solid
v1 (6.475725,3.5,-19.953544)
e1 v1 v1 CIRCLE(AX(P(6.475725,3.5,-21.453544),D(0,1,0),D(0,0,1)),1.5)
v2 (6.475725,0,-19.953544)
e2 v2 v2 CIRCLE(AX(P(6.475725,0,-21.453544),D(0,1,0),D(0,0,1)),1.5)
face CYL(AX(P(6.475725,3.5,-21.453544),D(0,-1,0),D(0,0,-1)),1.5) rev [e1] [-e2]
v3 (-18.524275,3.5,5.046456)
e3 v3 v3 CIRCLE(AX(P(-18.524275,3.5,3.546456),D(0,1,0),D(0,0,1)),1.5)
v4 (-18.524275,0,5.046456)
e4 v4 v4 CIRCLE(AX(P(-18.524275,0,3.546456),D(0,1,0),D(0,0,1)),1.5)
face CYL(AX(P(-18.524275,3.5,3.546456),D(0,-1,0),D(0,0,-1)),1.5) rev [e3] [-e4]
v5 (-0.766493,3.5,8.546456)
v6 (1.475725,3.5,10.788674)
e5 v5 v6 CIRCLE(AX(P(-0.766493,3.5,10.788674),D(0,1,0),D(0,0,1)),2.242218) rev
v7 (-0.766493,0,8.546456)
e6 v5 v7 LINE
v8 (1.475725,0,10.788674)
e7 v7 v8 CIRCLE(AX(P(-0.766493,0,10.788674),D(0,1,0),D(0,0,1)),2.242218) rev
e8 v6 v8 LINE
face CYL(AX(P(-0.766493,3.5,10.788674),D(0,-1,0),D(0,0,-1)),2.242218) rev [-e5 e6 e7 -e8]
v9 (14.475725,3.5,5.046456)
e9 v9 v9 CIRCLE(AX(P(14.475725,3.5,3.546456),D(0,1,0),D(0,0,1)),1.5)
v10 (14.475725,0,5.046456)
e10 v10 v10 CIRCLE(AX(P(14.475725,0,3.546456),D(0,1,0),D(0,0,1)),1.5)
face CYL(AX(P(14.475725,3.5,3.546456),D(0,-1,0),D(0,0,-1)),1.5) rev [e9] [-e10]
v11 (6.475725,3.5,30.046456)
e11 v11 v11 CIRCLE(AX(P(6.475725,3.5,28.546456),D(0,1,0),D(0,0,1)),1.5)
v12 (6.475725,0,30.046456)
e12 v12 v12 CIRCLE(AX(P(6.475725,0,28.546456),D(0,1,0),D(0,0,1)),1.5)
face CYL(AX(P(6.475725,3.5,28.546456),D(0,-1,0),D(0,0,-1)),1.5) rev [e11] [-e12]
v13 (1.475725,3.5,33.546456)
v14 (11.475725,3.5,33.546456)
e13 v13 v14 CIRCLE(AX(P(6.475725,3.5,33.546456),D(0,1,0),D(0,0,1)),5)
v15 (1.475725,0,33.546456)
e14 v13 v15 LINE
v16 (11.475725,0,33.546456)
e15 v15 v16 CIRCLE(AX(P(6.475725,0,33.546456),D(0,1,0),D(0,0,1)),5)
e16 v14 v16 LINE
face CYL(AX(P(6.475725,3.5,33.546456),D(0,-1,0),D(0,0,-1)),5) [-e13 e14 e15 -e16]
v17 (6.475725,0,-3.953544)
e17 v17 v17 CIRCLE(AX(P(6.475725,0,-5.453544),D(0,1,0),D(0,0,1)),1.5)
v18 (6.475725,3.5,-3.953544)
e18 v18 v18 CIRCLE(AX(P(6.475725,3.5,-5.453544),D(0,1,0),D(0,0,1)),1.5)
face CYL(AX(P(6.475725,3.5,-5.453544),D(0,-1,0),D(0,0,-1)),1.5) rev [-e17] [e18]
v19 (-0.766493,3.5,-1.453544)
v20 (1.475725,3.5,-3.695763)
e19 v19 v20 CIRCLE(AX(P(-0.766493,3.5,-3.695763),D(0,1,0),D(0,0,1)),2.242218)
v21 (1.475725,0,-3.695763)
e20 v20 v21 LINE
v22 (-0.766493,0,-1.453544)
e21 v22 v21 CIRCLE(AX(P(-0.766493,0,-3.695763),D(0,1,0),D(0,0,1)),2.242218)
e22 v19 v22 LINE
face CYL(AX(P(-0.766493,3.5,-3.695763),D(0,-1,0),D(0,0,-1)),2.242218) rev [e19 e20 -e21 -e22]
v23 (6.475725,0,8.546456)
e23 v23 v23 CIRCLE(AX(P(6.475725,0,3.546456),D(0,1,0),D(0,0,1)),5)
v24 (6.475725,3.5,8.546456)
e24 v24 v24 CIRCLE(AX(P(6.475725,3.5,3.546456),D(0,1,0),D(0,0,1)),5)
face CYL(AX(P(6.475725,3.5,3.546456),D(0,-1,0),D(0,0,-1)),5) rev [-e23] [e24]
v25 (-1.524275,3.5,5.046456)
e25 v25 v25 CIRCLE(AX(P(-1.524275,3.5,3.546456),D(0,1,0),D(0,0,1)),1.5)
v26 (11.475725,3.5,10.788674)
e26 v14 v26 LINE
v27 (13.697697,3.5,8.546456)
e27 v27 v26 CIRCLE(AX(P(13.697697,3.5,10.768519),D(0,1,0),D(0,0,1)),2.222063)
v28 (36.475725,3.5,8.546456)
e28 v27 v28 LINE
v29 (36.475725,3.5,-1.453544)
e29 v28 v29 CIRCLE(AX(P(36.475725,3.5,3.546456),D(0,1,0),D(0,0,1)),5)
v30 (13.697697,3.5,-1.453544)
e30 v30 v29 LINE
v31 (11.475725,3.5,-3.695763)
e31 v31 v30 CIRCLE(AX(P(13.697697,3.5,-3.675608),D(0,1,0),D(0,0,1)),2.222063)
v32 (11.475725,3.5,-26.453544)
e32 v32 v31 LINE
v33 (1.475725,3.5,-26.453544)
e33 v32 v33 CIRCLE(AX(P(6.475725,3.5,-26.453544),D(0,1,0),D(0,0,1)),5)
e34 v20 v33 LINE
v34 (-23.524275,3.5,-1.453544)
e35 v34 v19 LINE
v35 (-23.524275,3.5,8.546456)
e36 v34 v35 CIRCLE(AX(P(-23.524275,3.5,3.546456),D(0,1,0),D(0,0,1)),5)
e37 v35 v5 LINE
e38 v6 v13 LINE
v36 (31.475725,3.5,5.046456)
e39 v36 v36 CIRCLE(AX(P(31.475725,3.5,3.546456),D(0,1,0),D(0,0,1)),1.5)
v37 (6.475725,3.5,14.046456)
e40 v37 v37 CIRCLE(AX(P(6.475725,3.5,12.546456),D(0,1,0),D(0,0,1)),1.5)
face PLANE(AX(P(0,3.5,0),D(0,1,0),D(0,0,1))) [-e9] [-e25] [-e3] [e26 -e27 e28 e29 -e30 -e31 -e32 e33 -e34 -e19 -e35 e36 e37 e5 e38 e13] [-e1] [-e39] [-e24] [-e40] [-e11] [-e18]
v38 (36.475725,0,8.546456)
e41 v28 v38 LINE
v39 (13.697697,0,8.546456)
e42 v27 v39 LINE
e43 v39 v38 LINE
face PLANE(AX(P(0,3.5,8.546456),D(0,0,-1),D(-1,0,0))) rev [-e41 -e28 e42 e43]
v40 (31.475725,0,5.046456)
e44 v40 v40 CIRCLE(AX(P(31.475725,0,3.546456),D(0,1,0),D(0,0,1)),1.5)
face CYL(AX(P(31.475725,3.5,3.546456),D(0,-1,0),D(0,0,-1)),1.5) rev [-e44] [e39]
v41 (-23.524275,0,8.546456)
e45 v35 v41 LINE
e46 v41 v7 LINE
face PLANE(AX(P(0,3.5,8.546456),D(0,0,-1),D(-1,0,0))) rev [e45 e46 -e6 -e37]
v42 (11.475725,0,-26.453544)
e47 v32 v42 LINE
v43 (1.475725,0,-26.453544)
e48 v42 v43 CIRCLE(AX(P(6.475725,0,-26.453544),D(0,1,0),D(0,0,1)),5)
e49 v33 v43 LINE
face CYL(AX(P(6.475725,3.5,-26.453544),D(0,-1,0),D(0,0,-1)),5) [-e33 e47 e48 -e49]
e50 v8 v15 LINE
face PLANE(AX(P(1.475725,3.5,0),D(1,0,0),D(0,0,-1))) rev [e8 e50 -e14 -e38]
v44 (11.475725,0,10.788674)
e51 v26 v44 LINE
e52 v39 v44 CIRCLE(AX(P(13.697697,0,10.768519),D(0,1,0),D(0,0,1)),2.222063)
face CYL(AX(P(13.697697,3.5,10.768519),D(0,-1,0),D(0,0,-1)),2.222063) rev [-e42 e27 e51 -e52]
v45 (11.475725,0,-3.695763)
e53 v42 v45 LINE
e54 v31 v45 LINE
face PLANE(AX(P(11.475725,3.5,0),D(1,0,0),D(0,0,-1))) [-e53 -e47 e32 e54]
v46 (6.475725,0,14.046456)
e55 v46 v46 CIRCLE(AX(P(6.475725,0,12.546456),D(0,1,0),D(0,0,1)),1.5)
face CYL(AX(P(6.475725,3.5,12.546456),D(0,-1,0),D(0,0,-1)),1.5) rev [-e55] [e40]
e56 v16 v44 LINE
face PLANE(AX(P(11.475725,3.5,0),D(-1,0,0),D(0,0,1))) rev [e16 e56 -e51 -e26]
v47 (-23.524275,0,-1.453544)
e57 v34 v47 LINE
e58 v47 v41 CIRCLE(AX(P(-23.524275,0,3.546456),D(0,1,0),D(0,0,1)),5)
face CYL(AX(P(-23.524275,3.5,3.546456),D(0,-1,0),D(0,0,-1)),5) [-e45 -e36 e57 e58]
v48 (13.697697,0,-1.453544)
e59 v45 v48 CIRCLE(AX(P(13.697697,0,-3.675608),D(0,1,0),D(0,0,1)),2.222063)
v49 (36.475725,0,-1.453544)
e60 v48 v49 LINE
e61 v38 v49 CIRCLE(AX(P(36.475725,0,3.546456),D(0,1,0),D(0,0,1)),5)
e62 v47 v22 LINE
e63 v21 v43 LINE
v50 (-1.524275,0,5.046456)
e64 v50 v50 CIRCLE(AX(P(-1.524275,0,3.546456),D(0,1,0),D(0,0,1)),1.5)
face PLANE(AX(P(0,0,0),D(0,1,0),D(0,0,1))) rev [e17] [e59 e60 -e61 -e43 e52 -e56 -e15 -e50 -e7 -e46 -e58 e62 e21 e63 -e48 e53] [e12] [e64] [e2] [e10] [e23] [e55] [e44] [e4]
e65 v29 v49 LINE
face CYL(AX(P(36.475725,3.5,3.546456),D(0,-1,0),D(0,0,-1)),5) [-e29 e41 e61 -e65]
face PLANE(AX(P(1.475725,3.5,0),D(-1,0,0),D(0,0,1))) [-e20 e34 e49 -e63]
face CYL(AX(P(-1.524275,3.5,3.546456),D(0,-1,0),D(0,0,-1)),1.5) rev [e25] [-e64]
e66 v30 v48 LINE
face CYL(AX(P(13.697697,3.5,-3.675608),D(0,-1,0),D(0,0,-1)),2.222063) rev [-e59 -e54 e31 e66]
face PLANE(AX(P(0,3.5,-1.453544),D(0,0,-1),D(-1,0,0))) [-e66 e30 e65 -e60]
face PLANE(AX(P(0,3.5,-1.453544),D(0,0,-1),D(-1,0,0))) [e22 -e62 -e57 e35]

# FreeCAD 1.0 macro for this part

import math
import FreeCAD as App
import Part
import Sketcher
Q = App.Units.Quantity

doc = App.newDocument("Part")
body = doc.addObject("PartDesign::Body", "Body")

# Sketch on XZ plane
sketch1 = body.newObject("Sketcher::SketchObject", "Sketch")
sketch1.AttachmentSupport = (doc.getObject("XZ_Plane"), [""])
sketch1.MapMode = "FlatFace"
sketch1.addGeometry([
    Part.ArcOfCircle(Part.Circle(App.Vector(-0.766493, -3.695763, 0), App.Vector(0, 0, 1), 2.242218), math.radians(0), math.radians(90)),  # 0
    Part.LineSegment(App.Vector(-0.766493, -1.453544, 0), App.Vector(-23.524275, -1.453544, 0)),  # 1
    Part.ArcOfCircle(Part.Circle(App.Vector(-23.524275, 3.546456, 0), App.Vector(0, 0, 1), 5), math.radians(90), math.radians(270)),  # 2
    Part.LineSegment(App.Vector(-23.524275, 8.546456, 0), App.Vector(-0.766493, 8.546456, 0)),  # 3
    Part.ArcOfCircle(Part.Circle(App.Vector(-0.766493, 10.788674, 0), App.Vector(0, 0, 1), 2.242218), math.radians(-90), math.radians(0)),  # 4
    Part.LineSegment(App.Vector(1.475725, 10.788674, 0), App.Vector(1.475725, 33.546456, 0)),  # 5
    Part.ArcOfCircle(Part.Circle(App.Vector(6.475725, 33.546456, 0), App.Vector(0, 0, 1), 5), math.radians(0), math.radians(180)),  # 6
    Part.LineSegment(App.Vector(11.475725, 33.546456, 0), App.Vector(11.475725, 10.748364, 0)),  # 7
    Part.ArcOfCircle(Part.Circle(App.Vector(13.697697, 10.768519, 0), App.Vector(0, 0, 1), 2.222063), math.radians(-179.480295), math.radians(-90)),  # 8
    Part.LineSegment(App.Vector(13.697697, 8.546456, 0), App.Vector(36.475725, 8.546456, 0)),  # 9
    Part.ArcOfCircle(Part.Circle(App.Vector(36.475725, 3.546456, 0), App.Vector(0, 0, 1), 5), math.radians(-90), math.radians(90)),  # 10
    Part.LineSegment(App.Vector(36.475725, -1.453544, 0), App.Vector(13.697697, -1.453544, 0)),  # 11
    Part.ArcOfCircle(Part.Circle(App.Vector(13.697697, -3.675608, 0), App.Vector(0, 0, 1), 2.222063), math.radians(90), math.radians(179.480295)),  # 12
    Part.LineSegment(App.Vector(11.475725, -3.655453, 0), App.Vector(11.475725, -26.453544, 0)),  # 13
    Part.ArcOfCircle(Part.Circle(App.Vector(6.475725, -26.453544, 0), App.Vector(0, 0, 1), 5), math.radians(180), math.radians(360)),  # 14
    Part.LineSegment(App.Vector(1.475725, -26.453544, 0), App.Vector(1.475725, -3.695763, 0)),  # 15
    Part.Circle(App.Vector(6.475725, 28.546456, 0), App.Vector(0, 0, 1), 1.5),  # 16
    Part.Circle(App.Vector(6.475725, 12.546456, 0), App.Vector(0, 0, 1), 1.5),  # 17
    Part.Circle(App.Vector(-18.524275, 3.546456, 0), App.Vector(0, 0, 1), 1.5),  # 18
    Part.Circle(App.Vector(-1.524275, 3.546456, 0), App.Vector(0, 0, 1), 1.5),  # 19
    Part.Circle(App.Vector(6.475725, 3.546456, 0), App.Vector(0, 0, 1), 5),  # 20
    Part.Circle(App.Vector(14.475725, 3.546456, 0), App.Vector(0, 0, 1), 1.5),  # 21
    Part.Circle(App.Vector(6.475725, -5.453544, 0), App.Vector(0, 0, 1), 1.5),  # 22
    Part.Circle(App.Vector(31.475725, 3.546456, 0), App.Vector(0, 0, 1), 1.5),  # 23
    Part.Circle(App.Vector(6.475725, -21.453544, 0), App.Vector(0, 0, 1), 1.5),  # 24
], False)
sketch1.addConstraint([
    Sketcher.Constraint("Coincident", 0, 2, 1, 1),
    Sketcher.Constraint("Coincident", 1, 2, 2, 2),
    Sketcher.Constraint("Coincident", 2, 1, 3, 1),
    Sketcher.Constraint("Coincident", 3, 2, 4, 1),
    Sketcher.Constraint("Coincident", 4, 2, 5, 1),
    Sketcher.Constraint("Coincident", 5, 2, 6, 2),
    Sketcher.Constraint("Coincident", 6, 1, 7, 1),
    Sketcher.Constraint("Coincident", 7, 2, 8, 1),
    Sketcher.Constraint("Coincident", 8, 2, 9, 1),
    Sketcher.Constraint("Coincident", 9, 2, 10, 2),
    Sketcher.Constraint("Coincident", 10, 1, 11, 1),
    Sketcher.Constraint("Coincident", 11, 2, 12, 1),
    Sketcher.Constraint("Coincident", 12, 2, 13, 1),
    Sketcher.Constraint("Coincident", 13, 2, 14, 2),
    Sketcher.Constraint("Coincident", 14, 1, 15, 1),
    Sketcher.Constraint("Coincident", 15, 2, 0, 1),
    Sketcher.Constraint("Horizontal", 1),
    Sketcher.Constraint("Horizontal", 3),
    Sketcher.Constraint("Vertical", 5),
    Sketcher.Constraint("Vertical", 7),
    Sketcher.Constraint("Horizontal", 9),
    Sketcher.Constraint("Horizontal", 11),
    Sketcher.Constraint("Vertical", 13),
    Sketcher.Constraint("Vertical", 15),
    Sketcher.Constraint("Diameter", 16, Q("3 mm")),
    Sketcher.Constraint("Diameter", 17, Q("3 mm")),
    Sketcher.Constraint("Diameter", 18, Q("3 mm")),
    Sketcher.Constraint("Diameter", 19, Q("3 mm")),
    Sketcher.Constraint("Diameter", 20, Q("10 mm")),
    Sketcher.Constraint("Diameter", 21, Q("3 mm")),
    Sketcher.Constraint("Diameter", 22, Q("3 mm")),
    Sketcher.Constraint("Diameter", 23, Q("3 mm")),
    Sketcher.Constraint("Diameter", 24, Q("3 mm")),
    Sketcher.Constraint("Radius", 2, Q("5 mm")),
    Sketcher.Constraint("Radius", 6, Q("5 mm")),
    Sketcher.Constraint("Radius", 10, Q("5 mm")),
    Sketcher.Constraint("Radius", 14, Q("5 mm")),
    Sketcher.Constraint("DistanceX", 2, 3, 6, 3, Q("30 mm")),
    Sketcher.Constraint("DistanceY", 2, 3, 6, 3, Q("30 mm")),
    Sketcher.Constraint("DistanceX", 6, 3, 10, 3, Q("30 mm")),
    Sketcher.Constraint("DistanceY", 10, 3, 6, 3, Q("30 mm")),
    Sketcher.Constraint("DistanceX", 2, 3, 14, 3, Q("30 mm")),
    Sketcher.Constraint("DistanceY", 14, 3, 2, 3, Q("30 mm")),
    Sketcher.Constraint("DistanceY", 16, 3, 6, 3, Q("5 mm")),
    Sketcher.Constraint("DistanceY", 17, 3, 16, 3, Q("16 mm")),
    Sketcher.Constraint("DistanceX", 2, 3, 18, 3, Q("5 mm")),
    Sketcher.Constraint("DistanceX", 18, 3, 17, 3, Q("25 mm")),
    Sketcher.Constraint("DistanceY", 18, 3, 17, 3, Q("9 mm")),
    Sketcher.Constraint("DistanceX", 19, 3, 17, 3, Q("8 mm")),
    Sketcher.Constraint("DistanceY", 19, 3, 17, 3, Q("9 mm")),
    Sketcher.Constraint("DistanceX", 19, 3, 20, 3, Q("8 mm")),
    Sketcher.Constraint("DistanceY", 20, 3, 17, 3, Q("9 mm")),
    Sketcher.Constraint("DistanceX", 20, 3, 21, 3, Q("8 mm")),
    Sketcher.Constraint("DistanceY", 21, 3, 17, 3, Q("9 mm")),
    Sketcher.Constraint("DistanceY", 22, 3, 20, 3, Q("9 mm")),
    Sketcher.Constraint("DistanceX", 19, 3, 22, 3, Q("8 mm")),
    Sketcher.Constraint("DistanceX", 23, 3, 10, 3, Q("5 mm")),
    Sketcher.Constraint("DistanceY", 14, 3, 24, 3, Q("5 mm")),
    Sketcher.Constraint("DistanceX", 1, 2, 18, 3, Q("5 mm")),
    Sketcher.Constraint("DistanceX", 2, 1, 18, 3, Q("5 mm")),
    Sketcher.Constraint("DistanceX", 5, 2, 16, 3, Q("5 mm")),
    Sketcher.Constraint("DistanceY", 16, 3, 5, 2, Q("5 mm")),
    Sketcher.Constraint("DistanceY", 16, 3, 6, 1, Q("5 mm")),
    Sketcher.Constraint("DistanceX", 23, 3, 9, 2, Q("5 mm")),
    Sketcher.Constraint("DistanceY", 23, 3, 9, 2, Q("5 mm")),
    Sketcher.Constraint("DistanceX", 23, 3, 10, 1, Q("5 mm")),
    Sketcher.Constraint("DistanceX", 24, 3, 13, 2, Q("5 mm")),
    Sketcher.Constraint("DistanceY", 13, 2, 24, 3, Q("5 mm")),
    Sketcher.Constraint("DistanceY", 14, 1, 24, 3, Q("5 mm")),
    Sketcher.Constraint("Radius", 0, Q("2.242218 mm")),
    Sketcher.Constraint("Radius", 4, Q("2.242218 mm")),
    Sketcher.Constraint("Radius", 8, Q("2.222063 mm")),
    Sketcher.Constraint("Radius", 12, Q("2.222063 mm")),
    Sketcher.Constraint("DistanceX", 1, 2, 1, 1, Q("22.757782 mm")),
    Sketcher.Constraint("DistanceX", 3, 1, 3, 2, Q("22.757782 mm")),
    Sketcher.Constraint("DistanceX", 9, 1, 9, 2, Q("22.778028 mm")),
    Sketcher.Constraint("DistanceX", 11, 2, 11, 1, Q("22.778028 mm")),
    Sketcher.Constraint("DistanceY", 5, 1, 5, 2, Q("22.757782 mm")),
    Sketcher.Constraint("DistanceY", 7, 2, 7, 1, Q("22.798092 mm")),
    Sketcher.Constraint("DistanceY", 13, 2, 13, 1, Q("22.798092 mm")),
    Sketcher.Constraint("DistanceY", 15, 1, 15, 2, Q("22.757782 mm")),
    Sketcher.Constraint("DistanceY", -1, 1, 8, 3, Q("10.768519 mm")),
    Sketcher.Constraint("DistanceX", 0, 3, -1, 1, Q("0.766493 mm")),
])
pad1 = body.newObject("PartDesign::Pad", "Pad")
pad1.Profile = sketch1
pad1.Length = 3.5
pad1.Reversed = True

doc.recompute()
